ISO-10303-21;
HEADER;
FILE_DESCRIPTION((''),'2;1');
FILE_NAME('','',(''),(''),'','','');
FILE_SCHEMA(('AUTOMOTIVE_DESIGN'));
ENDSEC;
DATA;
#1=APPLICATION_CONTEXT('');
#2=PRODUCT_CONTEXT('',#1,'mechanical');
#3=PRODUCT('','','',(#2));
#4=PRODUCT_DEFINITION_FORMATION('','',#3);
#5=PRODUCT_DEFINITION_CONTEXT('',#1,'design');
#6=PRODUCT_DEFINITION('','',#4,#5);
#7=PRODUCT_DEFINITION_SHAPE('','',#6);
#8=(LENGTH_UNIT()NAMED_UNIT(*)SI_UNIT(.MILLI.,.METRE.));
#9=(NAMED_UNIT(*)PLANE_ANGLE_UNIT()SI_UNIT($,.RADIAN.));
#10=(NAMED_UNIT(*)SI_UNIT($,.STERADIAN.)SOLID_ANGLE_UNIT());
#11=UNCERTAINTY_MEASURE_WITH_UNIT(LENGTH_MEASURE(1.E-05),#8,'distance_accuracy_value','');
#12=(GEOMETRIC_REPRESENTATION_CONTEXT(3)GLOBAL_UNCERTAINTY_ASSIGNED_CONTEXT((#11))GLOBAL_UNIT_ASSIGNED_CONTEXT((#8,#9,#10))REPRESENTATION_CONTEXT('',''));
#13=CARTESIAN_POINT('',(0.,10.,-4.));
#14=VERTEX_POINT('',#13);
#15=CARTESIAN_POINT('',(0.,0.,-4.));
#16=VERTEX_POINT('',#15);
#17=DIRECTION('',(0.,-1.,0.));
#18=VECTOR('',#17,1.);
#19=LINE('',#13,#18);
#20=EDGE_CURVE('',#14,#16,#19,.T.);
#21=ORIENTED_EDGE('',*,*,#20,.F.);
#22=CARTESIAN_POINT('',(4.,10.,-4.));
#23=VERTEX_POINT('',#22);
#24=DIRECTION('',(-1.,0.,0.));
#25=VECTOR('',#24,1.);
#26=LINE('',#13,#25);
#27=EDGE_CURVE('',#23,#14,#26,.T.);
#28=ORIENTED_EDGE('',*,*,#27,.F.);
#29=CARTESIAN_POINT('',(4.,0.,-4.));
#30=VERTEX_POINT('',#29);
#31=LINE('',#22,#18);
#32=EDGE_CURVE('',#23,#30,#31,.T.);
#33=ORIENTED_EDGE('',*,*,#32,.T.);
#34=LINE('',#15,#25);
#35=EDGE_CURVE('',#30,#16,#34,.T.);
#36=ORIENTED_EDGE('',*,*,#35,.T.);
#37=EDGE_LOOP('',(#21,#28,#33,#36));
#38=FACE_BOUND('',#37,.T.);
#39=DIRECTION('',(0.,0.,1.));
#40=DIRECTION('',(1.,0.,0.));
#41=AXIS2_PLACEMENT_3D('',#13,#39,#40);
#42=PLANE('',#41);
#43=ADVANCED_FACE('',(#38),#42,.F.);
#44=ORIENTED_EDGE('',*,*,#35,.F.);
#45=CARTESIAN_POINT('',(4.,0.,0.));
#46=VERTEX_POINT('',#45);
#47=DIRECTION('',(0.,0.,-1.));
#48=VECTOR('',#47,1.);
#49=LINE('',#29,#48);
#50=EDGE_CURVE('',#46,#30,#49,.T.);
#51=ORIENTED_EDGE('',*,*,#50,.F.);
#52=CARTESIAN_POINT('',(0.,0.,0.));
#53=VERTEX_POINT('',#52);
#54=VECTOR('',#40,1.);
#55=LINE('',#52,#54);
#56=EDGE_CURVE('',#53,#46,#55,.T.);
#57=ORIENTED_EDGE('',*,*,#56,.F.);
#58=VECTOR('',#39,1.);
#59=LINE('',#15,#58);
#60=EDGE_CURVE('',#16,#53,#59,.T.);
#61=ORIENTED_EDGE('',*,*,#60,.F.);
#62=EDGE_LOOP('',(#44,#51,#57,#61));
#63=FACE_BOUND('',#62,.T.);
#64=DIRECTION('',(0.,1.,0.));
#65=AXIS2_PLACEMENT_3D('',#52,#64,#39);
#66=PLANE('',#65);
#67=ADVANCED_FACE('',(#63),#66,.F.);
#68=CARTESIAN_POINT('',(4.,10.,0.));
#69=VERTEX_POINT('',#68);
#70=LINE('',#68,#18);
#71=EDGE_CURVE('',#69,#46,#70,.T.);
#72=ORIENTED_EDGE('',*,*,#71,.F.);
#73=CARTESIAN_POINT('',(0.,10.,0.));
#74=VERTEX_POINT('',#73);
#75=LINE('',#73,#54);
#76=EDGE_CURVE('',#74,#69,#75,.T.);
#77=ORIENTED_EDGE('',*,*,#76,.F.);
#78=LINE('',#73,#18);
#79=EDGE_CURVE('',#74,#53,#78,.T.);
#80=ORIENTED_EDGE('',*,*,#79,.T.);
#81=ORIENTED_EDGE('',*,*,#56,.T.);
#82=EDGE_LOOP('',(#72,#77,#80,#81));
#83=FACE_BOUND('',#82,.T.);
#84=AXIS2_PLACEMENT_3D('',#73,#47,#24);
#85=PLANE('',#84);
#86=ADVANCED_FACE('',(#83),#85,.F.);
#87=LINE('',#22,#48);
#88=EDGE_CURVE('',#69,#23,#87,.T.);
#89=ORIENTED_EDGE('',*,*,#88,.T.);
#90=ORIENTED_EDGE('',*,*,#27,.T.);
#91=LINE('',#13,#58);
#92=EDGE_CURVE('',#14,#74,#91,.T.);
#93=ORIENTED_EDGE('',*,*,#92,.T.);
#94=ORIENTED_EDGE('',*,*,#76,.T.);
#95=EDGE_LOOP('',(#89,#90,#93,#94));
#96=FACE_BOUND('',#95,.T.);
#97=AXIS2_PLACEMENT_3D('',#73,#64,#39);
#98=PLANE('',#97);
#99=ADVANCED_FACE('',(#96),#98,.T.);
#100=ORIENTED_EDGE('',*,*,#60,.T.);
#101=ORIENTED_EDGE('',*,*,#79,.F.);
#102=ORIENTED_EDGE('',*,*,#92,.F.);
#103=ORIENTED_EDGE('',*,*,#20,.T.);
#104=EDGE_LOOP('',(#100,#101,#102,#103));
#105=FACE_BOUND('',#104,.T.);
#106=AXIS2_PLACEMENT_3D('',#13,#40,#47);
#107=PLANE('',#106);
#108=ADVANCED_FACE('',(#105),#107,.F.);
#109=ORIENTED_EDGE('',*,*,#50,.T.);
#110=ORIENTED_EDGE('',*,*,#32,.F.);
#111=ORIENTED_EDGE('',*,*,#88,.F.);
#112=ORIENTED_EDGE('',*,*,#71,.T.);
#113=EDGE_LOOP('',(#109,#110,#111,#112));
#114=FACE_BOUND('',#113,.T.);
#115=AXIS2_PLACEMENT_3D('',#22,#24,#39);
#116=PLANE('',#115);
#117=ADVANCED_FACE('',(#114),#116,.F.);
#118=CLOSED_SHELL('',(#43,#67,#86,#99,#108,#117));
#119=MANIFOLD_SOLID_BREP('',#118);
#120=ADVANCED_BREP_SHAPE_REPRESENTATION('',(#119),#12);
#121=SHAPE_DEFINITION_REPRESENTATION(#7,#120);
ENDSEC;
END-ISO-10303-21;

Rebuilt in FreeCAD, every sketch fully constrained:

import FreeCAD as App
import Part
import Sketcher

V = App.Vector

doc = App.newDocument("Part")
params = doc.addObject("Spreadsheet::Sheet", "Params")
for row, (alias, value) in enumerate([
    ("sketch1_width", "4 mm"),
    ("pad1_length", "10 mm"),
], start=1):
    params.set(f"A{row}", alias)
    params.set(f"B{row}", "=" + value)
    params.setAlias(f"B{row}", alias)

body = doc.addObject("PartDesign::Body", "Body")

# Sketch on XZ plane
sketch1 = body.newObject("Sketcher::SketchObject", "Sketch")
sketch1.AttachmentSupport = (doc.getObject("XZ_Plane"), [""])
sketch1.MapMode = "FlatFace"
sketch1.addGeometry(Part.LineSegment(V(0, -4, 0), V(0, 0, 0)), False)
sketch1.addGeometry(Part.LineSegment(V(0, 0, 0), V(4, 0, 0)), False)
sketch1.addGeometry(Part.LineSegment(V(4, 0, 0), V(4, -4, 0)), False)
sketch1.addGeometry(Part.LineSegment(V(4, -4, 0), V(0, -4, 0)), False)
sketch1.addConstraint(Sketcher.Constraint("Coincident", 0, 2, 1, 1))
sketch1.addConstraint(Sketcher.Constraint("Coincident", 1, 2, 2, 1))
sketch1.addConstraint(Sketcher.Constraint("Coincident", 2, 2, 3, 1))
sketch1.addConstraint(Sketcher.Constraint("Coincident", 3, 2, 0, 1))
sketch1.addConstraint(Sketcher.Constraint("Vertical", 0))
sketch1.addConstraint(Sketcher.Constraint("Horizontal", 1))
sketch1.addConstraint(Sketcher.Constraint("Vertical", 2))
sketch1.addConstraint(Sketcher.Constraint("Horizontal", 3))
sketch1.addConstraint(Sketcher.Constraint("Coincident", 0, 2, -1, 1))
sketch1.addConstraint(Sketcher.Constraint("Equal", 3, 0))
sketch1.addConstraint(Sketcher.Constraint("DistanceX", 1, 1, 1, 2, 4.0))
sketch1.setExpression("Constraints[10]", "Params.sketch1_width")
pad1 = body.newObject("PartDesign::Pad", "Pad")
pad1.Profile = sketch1
pad1.setExpression("Length", "Params.pad1_length")
pad1.Reversed = True

doc.recompute()
